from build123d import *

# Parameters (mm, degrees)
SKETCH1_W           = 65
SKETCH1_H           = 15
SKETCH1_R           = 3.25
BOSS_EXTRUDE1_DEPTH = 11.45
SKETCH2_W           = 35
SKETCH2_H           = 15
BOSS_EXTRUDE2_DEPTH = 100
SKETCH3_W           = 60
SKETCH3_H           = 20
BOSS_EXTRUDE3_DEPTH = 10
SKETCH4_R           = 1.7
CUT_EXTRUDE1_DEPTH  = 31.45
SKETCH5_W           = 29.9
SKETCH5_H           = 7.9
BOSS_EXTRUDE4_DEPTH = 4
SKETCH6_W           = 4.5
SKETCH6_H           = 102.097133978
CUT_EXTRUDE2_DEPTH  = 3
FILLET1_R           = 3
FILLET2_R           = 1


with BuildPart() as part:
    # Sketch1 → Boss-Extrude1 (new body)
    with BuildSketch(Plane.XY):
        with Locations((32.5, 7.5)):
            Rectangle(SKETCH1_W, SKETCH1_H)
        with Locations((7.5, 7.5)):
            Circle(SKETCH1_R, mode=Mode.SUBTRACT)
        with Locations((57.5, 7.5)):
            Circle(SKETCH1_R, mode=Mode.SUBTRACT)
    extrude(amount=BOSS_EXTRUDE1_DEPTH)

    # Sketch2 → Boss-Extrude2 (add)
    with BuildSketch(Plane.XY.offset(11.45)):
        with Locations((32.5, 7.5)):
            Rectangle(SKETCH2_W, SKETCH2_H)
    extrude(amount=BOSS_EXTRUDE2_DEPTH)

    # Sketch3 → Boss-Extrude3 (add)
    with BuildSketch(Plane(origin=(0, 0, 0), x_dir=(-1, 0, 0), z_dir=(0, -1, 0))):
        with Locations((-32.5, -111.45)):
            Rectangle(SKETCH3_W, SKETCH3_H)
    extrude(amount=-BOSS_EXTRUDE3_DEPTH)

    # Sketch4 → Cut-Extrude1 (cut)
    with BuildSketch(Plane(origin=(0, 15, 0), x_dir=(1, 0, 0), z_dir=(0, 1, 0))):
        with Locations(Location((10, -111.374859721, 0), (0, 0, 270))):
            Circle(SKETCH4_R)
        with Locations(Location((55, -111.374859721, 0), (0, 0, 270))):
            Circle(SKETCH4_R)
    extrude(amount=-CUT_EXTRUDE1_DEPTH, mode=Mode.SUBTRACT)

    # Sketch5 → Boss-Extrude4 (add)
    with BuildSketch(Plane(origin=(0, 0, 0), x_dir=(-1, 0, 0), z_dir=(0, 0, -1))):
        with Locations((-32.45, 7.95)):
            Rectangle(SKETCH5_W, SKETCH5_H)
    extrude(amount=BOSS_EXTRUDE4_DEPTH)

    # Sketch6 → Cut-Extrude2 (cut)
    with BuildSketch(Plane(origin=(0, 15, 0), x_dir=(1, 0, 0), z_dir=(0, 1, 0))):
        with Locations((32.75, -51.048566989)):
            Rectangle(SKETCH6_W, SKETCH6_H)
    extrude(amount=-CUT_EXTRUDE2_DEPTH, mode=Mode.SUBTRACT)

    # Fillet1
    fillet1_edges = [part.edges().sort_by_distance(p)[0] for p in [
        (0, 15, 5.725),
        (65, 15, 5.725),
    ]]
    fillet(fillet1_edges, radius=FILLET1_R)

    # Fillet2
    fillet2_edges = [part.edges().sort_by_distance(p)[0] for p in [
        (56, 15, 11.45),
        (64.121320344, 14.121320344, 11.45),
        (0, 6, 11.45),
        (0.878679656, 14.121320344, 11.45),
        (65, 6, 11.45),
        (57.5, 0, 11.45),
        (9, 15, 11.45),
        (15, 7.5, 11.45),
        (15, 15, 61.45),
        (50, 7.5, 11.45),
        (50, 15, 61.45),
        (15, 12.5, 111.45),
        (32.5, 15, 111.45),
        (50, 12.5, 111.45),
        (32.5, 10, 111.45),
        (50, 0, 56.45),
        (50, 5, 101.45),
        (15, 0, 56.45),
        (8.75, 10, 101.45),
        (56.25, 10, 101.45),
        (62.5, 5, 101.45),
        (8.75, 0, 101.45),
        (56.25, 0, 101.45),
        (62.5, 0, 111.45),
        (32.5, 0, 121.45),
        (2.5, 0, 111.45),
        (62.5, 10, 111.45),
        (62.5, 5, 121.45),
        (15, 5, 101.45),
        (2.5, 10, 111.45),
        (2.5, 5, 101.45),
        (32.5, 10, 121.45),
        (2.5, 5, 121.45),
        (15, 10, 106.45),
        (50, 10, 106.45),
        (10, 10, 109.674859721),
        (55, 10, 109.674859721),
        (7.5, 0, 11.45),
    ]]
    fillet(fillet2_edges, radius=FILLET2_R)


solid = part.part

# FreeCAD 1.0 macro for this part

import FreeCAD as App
import Part
import Sketcher
from FreeCAD import Vector


def edges_at(feature, points):
    """Names of the edges that pass closest to the given points."""
    edges = feature.Shape.Edges
    near = lambda p: min(range(len(edges)), key=lambda i: edges[i].distToShape(Part.Vertex(*p))[0])
    return sorted({f"Edge{near(p) + 1}" for p in points})


def add_polygon(sketch, points):
    """Adds a closed chain of lines whose ends are joined by coincident constraints."""
    first, n = sketch.GeometryCount, len(points)
    for a, b in zip(points, points[1:] + points[:1]):
        sketch.addGeometry(Part.LineSegment(App.Vector(*a, 0), App.Vector(*b, 0)), False)
    for i in range(n):
        sketch.addConstraint(Sketcher.Constraint("Coincident", first + i, 2, first + (i + 1) % n, 1))

doc = App.newDocument("Part")
params = doc.addObject("Spreadsheet::Sheet", "Params")
for row, (alias, value) in enumerate([
    ("sketch1_diameter", "6.5 mm"),
    ("sketch1_width", "65 mm"),
    ("sketch1_height", "15 mm"),
    ("pad1_length", "11.45 mm"),
    ("sketch2_width", "35 mm"),
    ("sketch2_height", "15 mm"),
    ("pad2_length", "100 mm"),
    ("sketch3_width", "60 mm"),
    ("sketch3_height", "20 mm"),
    ("pad3_length", "10 mm"),
    ("sketch4_diameter", "3.4 mm"),
    ("pocket1_length", "31.45 mm"),
    ("sketch5_width", "29.9 mm"),
    ("sketch5_height", "7.9 mm"),
    ("pad4_length", "4 mm"),
    ("sketch6_width", "4.5 mm"),
    ("pocket2_length", "3 mm"),
    ("fillet_radius", "3 mm"),
    ("fillet2_radius", "1 mm"),
], start=1):
    params.set(f"A{row}", alias)
    params.set(f"B{row}", "=" + value)
    params.setAlias(f"B{row}", alias)

body = doc.addObject("PartDesign::Body", "Body")

sketch1 = body.newObject("Sketcher::SketchObject", "Sketch")
sketch1.AttachmentSupport = (doc.getObject("XY_Plane"), [""])
sketch1.MapMode = "FlatFace"
add_polygon(sketch1, [(0, 15), (0, 0), (65, 0), (65, 15)])
sketch1.addGeometry(Part.Circle(Vector(7.5, 7.5, 0), Vector(0, 0, 1), 3.2), False)
sketch1.addGeometry(Part.Circle(Vector(57.5, 7.5, 0), Vector(0, 0, 1), 3.2), False)
sketch1.addConstraint(Sketcher.Constraint("Vertical", 0))
sketch1.addConstraint(Sketcher.Constraint("Horizontal", 1))
sketch1.addConstraint(Sketcher.Constraint("Vertical", 2))
sketch1.addConstraint(Sketcher.Constraint("Horizontal", 3))
sketch1.addConstraint(Sketcher.Constraint("Coincident", 0, 2, -1, 1))
sketch1.addConstraint(Sketcher.Constraint("Equal", 4, 5))
sketch1.addConstraint(Sketcher.Constraint("Horizontal", 4, 3, 5, 3))
sketch1.addConstraint(Sketcher.Constraint("Diameter", 4, 6.5))
sketch1.addConstraint(Sketcher.Constraint("DistanceX", 1, 1, 1, 2, 65.0))
sketch1.addConstraint(Sketcher.Constraint("DistanceY", 0, 2, 0, 1, 15.0))
sketch1.addConstraint(Sketcher.Constraint("DistanceX", 4, 3, 5, 3, 50.0))
sketch1.addConstraint(Sketcher.Constraint("DistanceX", -1, 1, 4, 3, 7.5))
sketch1.addConstraint(Sketcher.Constraint("DistanceY", -1, 1, 4, 3, 7.5))
sketch1.setExpression("Constraints[11]", "Params.sketch1_diameter")
sketch1.setExpression("Constraints[12]", "Params.sketch1_width")
sketch1.setExpression("Constraints[13]", "Params.sketch1_height")
pad1 = body.newObject("PartDesign::Pad", "Pad")
pad1.Profile = sketch1
pad1.setExpression("Length", "Params.pad1_length")

sketch2 = body.newObject("Sketcher::SketchObject", "Sketch001")
sketch2.AttachmentSupport = (doc.getObject("XY_Plane"), [""])
sketch2.MapMode = "FlatFace"
sketch2.AttachmentOffset = App.Placement(Vector(0, 0, 11.45), App.Rotation())
add_polygon(sketch2, [(15, 15), (15, 0), (50, 0), (50, 15)])
sketch2.addConstraint(Sketcher.Constraint("Vertical", 0))
sketch2.addConstraint(Sketcher.Constraint("Horizontal", 1))
sketch2.addConstraint(Sketcher.Constraint("Vertical", 2))
sketch2.addConstraint(Sketcher.Constraint("Horizontal", 3))
sketch2.addConstraint(Sketcher.Constraint("PointOnObject", 0, 2, -1))
sketch2.addConstraint(Sketcher.Constraint("DistanceX", 1, 1, 1, 2, 35.0))
sketch2.addConstraint(Sketcher.Constraint("DistanceY", 0, 2, 0, 1, 15.0))
sketch2.addConstraint(Sketcher.Constraint("DistanceX", -1, 1, 0, 2, 15.0))
sketch2.setExpression("Constraints[9]", "Params.sketch2_width")
sketch2.setExpression("Constraints[10]", "Params.sketch2_height")
pad2 = body.newObject("PartDesign::Pad", "Pad001")
pad2.Profile = sketch2
pad2.setExpression("Length", "Params.pad2_length")

sketch3 = body.newObject("Sketcher::SketchObject", "Sketch002")
sketch3.AttachmentSupport = (doc.getObject("XZ_Plane"), [""])
sketch3.MapMode = "FlatFace"
add_polygon(sketch3, [(62, 101), (62, 121), (2, 121), (2, 101)])
sketch3.addConstraint(Sketcher.Constraint("Vertical", 0))
sketch3.addConstraint(Sketcher.Constraint("Horizontal", 1))
sketch3.addConstraint(Sketcher.Constraint("Vertical", 2))
sketch3.addConstraint(Sketcher.Constraint("Horizontal", 3))
sketch3.addConstraint(Sketcher.Constraint("DistanceX", 1, 2, 1, 1, 60.0))
sketch3.addConstraint(Sketcher.Constraint("DistanceY", 0, 1, 0, 2, 20.0))
sketch3.addConstraint(Sketcher.Constraint("DistanceX", -1, 1, 0, 2, 62.5))
sketch3.addConstraint(Sketcher.Constraint("DistanceY", -1, 1, 0, 2, 121.45))
sketch3.setExpression("Constraints[8]", "Params.sketch3_width")
sketch3.setExpression("Constraints[9]", "Params.sketch3_height")
pad3 = body.newObject("PartDesign::Pad", "Pad002")
pad3.Profile = sketch3
pad3.setExpression("Length", "Params.pad3_length")
pad3.Reversed = True

sketch4 = body.newObject("Sketcher::SketchObject", "Sketch003")
sketch4.AttachmentSupport = (doc.getObject("XZ_Plane"), [""])
sketch4.MapMode = "FlatFace"
sketch4.AttachmentOffset = App.Placement(Vector(0, 0, -15), App.Rotation())
sketch4.addGeometry(Part.Circle(Vector(10, 111.4, 0), Vector(0, 0, 1), 1.7), False)
sketch4.addGeometry(Part.Circle(Vector(55, 111.4, 0), Vector(0, 0, 1), 1.7), False)
sketch4.addConstraint(Sketcher.Constraint("Equal", 0, 1))
sketch4.addConstraint(Sketcher.Constraint("Horizontal", 0, 3, 1, 3))
sketch4.addConstraint(Sketcher.Constraint("Diameter", 0, 3.4))
sketch4.addConstraint(Sketcher.Constraint("DistanceX", -1, 1, 0, 3, 10.0))
sketch4.addConstraint(Sketcher.Constraint("DistanceX", -1, 1, 1, 3, 55.0))
sketch4.addConstraint(Sketcher.Constraint("DistanceY", -1, 1, 0, 3, 111.37486))
sketch4.setExpression("Constraints[2]", "Params.sketch4_diameter")
pocket1 = body.newObject("PartDesign::Pocket", "Pocket")
pocket1.Profile = sketch4
pocket1.setExpression("Length", "Params.pocket1_length")
pocket1.Reversed = True

sketch5 = body.newObject("Sketcher::SketchObject", "Sketch004")
sketch5.AttachmentSupport = (doc.getObject("XY_Plane"), [""])
sketch5.MapMode = "FlatFace"
add_polygon(sketch5, [(47, 12), (47, 4), (18, 4), (18, 12)])
sketch5.addConstraint(Sketcher.Constraint("Vertical", 0))
sketch5.addConstraint(Sketcher.Constraint("Horizontal", 1))
sketch5.addConstraint(Sketcher.Constraint("Vertical", 2))
sketch5.addConstraint(Sketcher.Constraint("Horizontal", 3))
sketch5.addConstraint(Sketcher.Constraint("DistanceX", 1, 2, 1, 1, 29.9))
sketch5.addConstraint(Sketcher.Constraint("DistanceY", 0, 2, 0, 1, 7.9))
sketch5.addConstraint(Sketcher.Constraint("DistanceY", -1, 1, 0, 2, 4.0))
sketch5.addConstraint(Sketcher.Constraint("DistanceX", -1, 1, 0, 2, 47.4))
sketch5.setExpression("Constraints[8]", "Params.sketch5_width")
sketch5.setExpression("Constraints[9]", "Params.sketch5_height")
pad4 = body.newObject("PartDesign::Pad", "Pad003")
pad4.Profile = sketch5
pad4.setExpression("Length", "Params.pad4_length")
pad4.Reversed = True

sketch6 = body.newObject("Sketcher::SketchObject", "Sketch005")
sketch6.AttachmentSupport = (doc.getObject("XZ_Plane"), [""])
sketch6.MapMode = "FlatFace"
sketch6.AttachmentOffset = App.Placement(Vector(0, 0, -15), App.Rotation())
add_polygon(sketch6, [(30.5, 0), (30.5, 102.1), (35, 102.1), (35, 0)])
sketch6.addConstraint(Sketcher.Constraint("Vertical", 0))
sketch6.addConstraint(Sketcher.Constraint("Horizontal", 1))
sketch6.addConstraint(Sketcher.Constraint("Vertical", 2))
sketch6.addConstraint(Sketcher.Constraint("Horizontal", 3))
sketch6.addConstraint(Sketcher.Constraint("PointOnObject", 2, 2, -1))
sketch6.addConstraint(Sketcher.Constraint("DistanceX", 1, 1, 1, 2, 4.5))
sketch6.addConstraint(Sketcher.Constraint("DistanceX", -1, 1, 1, 2, 35.0))
sketch6.addConstraint(Sketcher.Constraint("DistanceY", 0, 1, 0, 2, 102.097134))
sketch6.setExpression("Constraints[9]", "Params.sketch6_width")
pocket2 = body.newObject("PartDesign::Pocket", "Pocket001")
pocket2.Profile = sketch6
pocket2.setExpression("Length", "Params.pocket2_length")
pocket2.Reversed = True
doc.recompute()

fillet = body.newObject("PartDesign::Fillet", "Fillet")
fillet.Base = (pocket2, edges_at(pocket2, [(0, 15, 5.725), (65, 15, 5.725)]))
fillet.setExpression("Radius", "Params.fillet_radius")
doc.recompute()

fillet2 = body.newObject("PartDesign::Fillet", "Fillet001")
fillet2.Base = (fillet, edges_at(fillet, [
    (56, 15, 11.45),
    (64.121, 14.121, 11.45),
    (0, 6, 11.45),
    (0.879, 14.121, 11.45),
    (65, 6, 11.45),
    (57.5, 0, 11.45),
    (9, 15, 11.45),
    (15, 7.5, 11.45),
    (15, 15, 61.45),
    (50, 7.5, 11.45),
    (50, 15, 61.45),
    (15, 12.5, 111.45),
    (32.5, 15, 111.45),
    (50, 12.5, 111.45),
    (32.5, 10, 111.45),
    (50, 0, 56.45),
    (50, 5, 101.45),
    (15, 0, 56.45),
    (8.75, 10, 101.45),
    (56.25, 10, 101.45),
    (62.5, 5, 101.45),
    (8.75, 0, 101.45),
    (56.25, 0, 101.45),
    (62.5, 0, 111.45),
    (32.5, 0, 121.45),
    (2.5, 0, 111.45),
    (62.5, 10, 111.45),
    (62.5, 5, 121.45),
    (15, 5, 101.45),
    (2.5, 10, 111.45),
    (2.5, 5, 101.45),
    (32.5, 10, 121.45),
    (2.5, 5, 121.45),
    (15, 10, 106.45),
    (50, 10, 106.45),
    (10, 10, 109.675),
    (55, 10, 109.675),
    (7.5, 0, 11.45),
]))
fillet2.setExpression("Radius", "Params.fillet2_radius")

doc.recompute()
